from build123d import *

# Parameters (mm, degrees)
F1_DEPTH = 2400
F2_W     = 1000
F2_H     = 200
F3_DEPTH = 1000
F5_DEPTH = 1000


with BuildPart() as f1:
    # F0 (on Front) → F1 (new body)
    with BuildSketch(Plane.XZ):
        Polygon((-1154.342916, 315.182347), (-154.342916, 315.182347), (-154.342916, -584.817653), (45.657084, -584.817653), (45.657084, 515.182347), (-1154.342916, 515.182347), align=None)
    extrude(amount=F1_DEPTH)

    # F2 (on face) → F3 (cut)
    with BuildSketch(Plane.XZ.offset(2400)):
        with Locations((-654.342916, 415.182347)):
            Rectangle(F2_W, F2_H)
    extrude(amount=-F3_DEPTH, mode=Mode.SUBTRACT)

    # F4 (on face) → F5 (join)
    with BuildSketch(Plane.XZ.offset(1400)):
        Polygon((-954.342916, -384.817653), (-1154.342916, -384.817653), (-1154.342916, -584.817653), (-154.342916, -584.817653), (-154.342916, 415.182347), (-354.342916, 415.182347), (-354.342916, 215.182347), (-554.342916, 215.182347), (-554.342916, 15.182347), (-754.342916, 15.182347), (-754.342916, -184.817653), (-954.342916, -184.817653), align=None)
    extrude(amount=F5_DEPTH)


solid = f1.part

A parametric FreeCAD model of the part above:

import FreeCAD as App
import Part
import Sketcher

V = App.Vector


def add_polygon(sketch, points):
    """Adds a closed chain of lines whose ends are joined by coincident constraints."""
    first, n = sketch.GeometryCount, len(points)
    for a, b in zip(points, points[1:] + points[:1]):
        sketch.addGeometry(Part.LineSegment(App.Vector(*a, 0), App.Vector(*b, 0)), False)
    for i in range(n):
        sketch.addConstraint(Sketcher.Constraint("Coincident", first + i, 2, first + (i + 1) % n, 1))

doc = App.newDocument("Part")
body = doc.addObject("PartDesign::Body", "Body")

sketch1 = body.newObject("Sketcher::SketchObject", "Sketch")
sketch1.AttachmentSupport = (doc.getObject("XZ_Plane"), [""])
sketch1.MapMode = "FlatFace"
add_polygon(sketch1, [(-1154, 315), (-154, 315), (-154, -585), (46, -585), (46, 515), (-1154, 515)])
sketch1.addConstraint(Sketcher.Constraint("Horizontal", 0))
sketch1.addConstraint(Sketcher.Constraint("Vertical", 1))
sketch1.addConstraint(Sketcher.Constraint("Horizontal", 2))
sketch1.addConstraint(Sketcher.Constraint("Vertical", 3))
sketch1.addConstraint(Sketcher.Constraint("Horizontal", 4))
sketch1.addConstraint(Sketcher.Constraint("Vertical", 5))
sketch1.addConstraint(Sketcher.Constraint("Equal", 2, 5))
sketch1.addConstraint(Sketcher.Constraint("DistanceX", 0, 1, 0, 2, 1000.0))
sketch1.addConstraint(Sketcher.Constraint("DistanceX", 2, 1, 2, 2, 200.0))
sketch1.addConstraint(Sketcher.Constraint("DistanceY", 1, 2, 1, 1, 900.0))
sketch1.addConstraint(Sketcher.Constraint("DistanceX", 0, 2, -1, 1, 154.342916))
sketch1.addConstraint(Sketcher.Constraint("DistanceY", -1, 1, 0, 2, 315.182347))
pad1 = body.newObject("PartDesign::Pad", "Pad")
pad1.Profile = sketch1
pad1.Length = 2400

sketch2 = body.newObject("Sketcher::SketchObject", "Sketch001")
sketch2.AttachmentSupport = (doc.getObject("XZ_Plane"), [""])
sketch2.MapMode = "FlatFace"
sketch2.AttachmentOffset = App.Placement(V(0, 0, 2400), App.Rotation())
add_polygon(sketch2, [(-1154, 515), (-1154, 315), (-154, 315), (-154, 515)])
sketch2.addConstraint(Sketcher.Constraint("Vertical", 0))
sketch2.addConstraint(Sketcher.Constraint("Horizontal", 1))
sketch2.addConstraint(Sketcher.Constraint("Vertical", 2))
sketch2.addConstraint(Sketcher.Constraint("Horizontal", 3))
sketch2.addConstraint(Sketcher.Constraint("DistanceX", 1, 1, 1, 2, 1000.0))
sketch2.addConstraint(Sketcher.Constraint("DistanceY", 0, 2, 0, 1, 200.0))
sketch2.addConstraint(Sketcher.Constraint("DistanceX", 0, 2, -1, 1, 1154.342916))
sketch2.addConstraint(Sketcher.Constraint("DistanceY", -1, 1, 0, 2, 315.182347))
pocket1 = body.newObject("PartDesign::Pocket", "Pocket")
pocket1.Profile = sketch2
pocket1.Length = 1000

sketch3 = body.newObject("Sketcher::SketchObject", "Sketch002")
sketch3.AttachmentSupport = (doc.getObject("XZ_Plane"), [""])
sketch3.MapMode = "FlatFace"
sketch3.AttachmentOffset = App.Placement(V(0, 0, 1400), App.Rotation())
add_polygon(sketch3, [(-954, -385), (-1154, -385), (-1154, -585), (-154, -585), (-154, 415), (-354, 415), (-354, 215), (-554, 215), (-554, 15), (-754, 15), (-754, -185), (-954, -185)])
sketch3.addConstraint(Sketcher.Constraint("Horizontal", 0))
sketch3.addConstraint(Sketcher.Constraint("Vertical", 1))
sketch3.addConstraint(Sketcher.Constraint("Horizontal", 2))
sketch3.addConstraint(Sketcher.Constraint("Vertical", 3))
sketch3.addConstraint(Sketcher.Constraint("Horizontal", 4))
sketch3.addConstraint(Sketcher.Constraint("Vertical", 5))
sketch3.addConstraint(Sketcher.Constraint("Horizontal", 6))
sketch3.addConstraint(Sketcher.Constraint("Vertical", 7))
sketch3.addConstraint(Sketcher.Constraint("Horizontal", 8))
sketch3.addConstraint(Sketcher.Constraint("Vertical", 9))
sketch3.addConstraint(Sketcher.Constraint("Horizontal", 10))
sketch3.addConstraint(Sketcher.Constraint("Vertical", 11))
sketch3.addConstraint(Sketcher.Constraint("Equal", 0, 4))
sketch3.addConstraint(Sketcher.Constraint("Equal", 4, 6))
sketch3.addConstraint(Sketcher.Constraint("Equal", 6, 8))
sketch3.addConstraint(Sketcher.Constraint("Equal", 8, 10))
sketch3.addConstraint(Sketcher.Constraint("Equal", 10, 1))
sketch3.addConstraint(Sketcher.Constraint("Equal", 2, 3))
sketch3.addConstraint(Sketcher.Constraint("Equal", 1, 5))
sketch3.addConstraint(Sketcher.Constraint("Equal", 5, 7))
sketch3.addConstraint(Sketcher.Constraint("Equal", 7, 9))
sketch3.addConstraint(Sketcher.Constraint("DistanceX", 0, 2, 0, 1, 200.0))
sketch3.addConstraint(Sketcher.Constraint("DistanceX", 0, 2, -1, 1, 1154.342916))
sketch3.addConstraint(Sketcher.Constraint("DistanceY", 0, 2, -1, 1, 384.817653))
pad2 = body.newObject("PartDesign::Pad", "Pad001")
pad2.Profile = sketch3
pad2.Length = 1000

doc.recompute()
